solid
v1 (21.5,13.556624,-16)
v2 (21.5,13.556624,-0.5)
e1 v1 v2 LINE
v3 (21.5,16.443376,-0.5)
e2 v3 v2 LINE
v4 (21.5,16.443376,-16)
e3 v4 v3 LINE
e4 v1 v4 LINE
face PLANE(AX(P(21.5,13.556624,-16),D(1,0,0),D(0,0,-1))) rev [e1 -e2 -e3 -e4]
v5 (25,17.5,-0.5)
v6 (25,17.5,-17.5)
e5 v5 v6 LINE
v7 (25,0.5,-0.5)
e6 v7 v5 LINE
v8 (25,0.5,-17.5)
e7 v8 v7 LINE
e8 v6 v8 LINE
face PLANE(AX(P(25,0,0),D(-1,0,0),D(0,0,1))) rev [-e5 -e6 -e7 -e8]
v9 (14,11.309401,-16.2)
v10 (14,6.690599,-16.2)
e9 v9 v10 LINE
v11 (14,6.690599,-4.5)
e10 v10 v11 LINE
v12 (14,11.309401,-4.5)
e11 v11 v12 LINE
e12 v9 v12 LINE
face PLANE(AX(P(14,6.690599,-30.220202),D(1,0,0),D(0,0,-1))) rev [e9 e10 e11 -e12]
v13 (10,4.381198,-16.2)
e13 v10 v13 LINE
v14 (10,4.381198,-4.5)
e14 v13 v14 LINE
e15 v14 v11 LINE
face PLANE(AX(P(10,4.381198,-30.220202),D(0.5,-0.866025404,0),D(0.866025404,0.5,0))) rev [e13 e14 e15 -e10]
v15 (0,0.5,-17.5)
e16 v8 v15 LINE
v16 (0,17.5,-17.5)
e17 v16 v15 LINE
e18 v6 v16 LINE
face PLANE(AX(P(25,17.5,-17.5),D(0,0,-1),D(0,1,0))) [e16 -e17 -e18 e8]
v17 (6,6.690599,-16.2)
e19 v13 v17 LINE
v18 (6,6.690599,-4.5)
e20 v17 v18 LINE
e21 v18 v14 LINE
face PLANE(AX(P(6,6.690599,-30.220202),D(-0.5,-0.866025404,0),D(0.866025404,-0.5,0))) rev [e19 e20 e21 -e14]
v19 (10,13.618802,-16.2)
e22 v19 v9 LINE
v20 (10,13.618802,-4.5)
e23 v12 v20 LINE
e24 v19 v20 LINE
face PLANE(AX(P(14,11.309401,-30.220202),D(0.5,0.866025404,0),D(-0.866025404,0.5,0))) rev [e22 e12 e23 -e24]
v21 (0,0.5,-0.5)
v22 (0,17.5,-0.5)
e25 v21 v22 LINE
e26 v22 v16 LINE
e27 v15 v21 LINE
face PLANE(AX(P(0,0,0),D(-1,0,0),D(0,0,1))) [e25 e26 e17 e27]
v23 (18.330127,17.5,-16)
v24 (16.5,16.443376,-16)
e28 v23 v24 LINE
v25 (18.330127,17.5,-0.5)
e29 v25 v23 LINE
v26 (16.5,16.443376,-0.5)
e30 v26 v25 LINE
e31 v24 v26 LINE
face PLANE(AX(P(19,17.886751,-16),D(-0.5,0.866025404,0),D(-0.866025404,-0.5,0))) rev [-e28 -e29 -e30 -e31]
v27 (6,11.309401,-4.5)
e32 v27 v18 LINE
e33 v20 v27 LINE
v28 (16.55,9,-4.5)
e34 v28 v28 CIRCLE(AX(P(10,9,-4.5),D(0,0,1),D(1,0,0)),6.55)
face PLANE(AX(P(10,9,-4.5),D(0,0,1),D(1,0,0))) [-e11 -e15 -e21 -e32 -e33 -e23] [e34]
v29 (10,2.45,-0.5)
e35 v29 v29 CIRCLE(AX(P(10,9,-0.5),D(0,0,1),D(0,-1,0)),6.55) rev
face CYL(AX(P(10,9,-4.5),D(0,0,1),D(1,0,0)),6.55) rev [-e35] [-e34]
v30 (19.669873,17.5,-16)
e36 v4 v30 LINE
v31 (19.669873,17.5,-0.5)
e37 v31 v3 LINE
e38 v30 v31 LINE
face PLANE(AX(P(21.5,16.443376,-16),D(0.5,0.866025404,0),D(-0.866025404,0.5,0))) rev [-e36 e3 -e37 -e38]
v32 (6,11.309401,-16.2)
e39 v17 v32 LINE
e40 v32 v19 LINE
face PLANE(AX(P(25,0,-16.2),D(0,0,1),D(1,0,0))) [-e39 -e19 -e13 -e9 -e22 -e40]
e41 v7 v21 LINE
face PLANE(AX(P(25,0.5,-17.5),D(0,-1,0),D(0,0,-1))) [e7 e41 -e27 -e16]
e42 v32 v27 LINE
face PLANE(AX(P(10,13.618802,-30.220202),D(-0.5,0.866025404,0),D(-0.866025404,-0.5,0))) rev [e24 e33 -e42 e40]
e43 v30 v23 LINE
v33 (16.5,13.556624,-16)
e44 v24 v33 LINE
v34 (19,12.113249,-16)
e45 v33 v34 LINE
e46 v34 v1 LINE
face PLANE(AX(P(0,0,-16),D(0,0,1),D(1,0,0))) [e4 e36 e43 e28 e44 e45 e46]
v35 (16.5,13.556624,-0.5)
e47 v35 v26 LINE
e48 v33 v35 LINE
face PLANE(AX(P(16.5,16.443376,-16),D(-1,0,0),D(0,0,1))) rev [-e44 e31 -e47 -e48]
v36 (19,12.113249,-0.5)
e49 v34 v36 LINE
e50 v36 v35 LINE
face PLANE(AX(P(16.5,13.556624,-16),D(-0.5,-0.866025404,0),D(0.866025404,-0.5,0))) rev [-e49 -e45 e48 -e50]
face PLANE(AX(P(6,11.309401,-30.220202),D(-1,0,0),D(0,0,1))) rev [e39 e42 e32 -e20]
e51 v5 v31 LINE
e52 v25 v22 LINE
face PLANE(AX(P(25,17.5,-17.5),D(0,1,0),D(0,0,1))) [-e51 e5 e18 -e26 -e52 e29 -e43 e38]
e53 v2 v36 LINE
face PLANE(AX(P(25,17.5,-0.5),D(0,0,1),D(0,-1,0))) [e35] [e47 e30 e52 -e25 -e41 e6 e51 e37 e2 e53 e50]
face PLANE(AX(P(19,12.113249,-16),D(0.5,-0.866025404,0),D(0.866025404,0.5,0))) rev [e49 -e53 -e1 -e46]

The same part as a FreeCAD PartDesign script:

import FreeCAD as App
import Part
import Sketcher

V = App.Vector
Q = App.Units.Quantity

doc = App.newDocument("Part")
body = doc.addObject("PartDesign::Body", "Body")

# Sketch on YZ plane
sketch1 = body.newObject("Sketcher::SketchObject", "Sketch")
sketch1.AttachmentSupport = (doc.getObject("YZ_Plane"), [""])
sketch1.MapMode = "FlatFace"
sketch1.addGeometry(Part.LineSegment(V(18, 0, 0), V(0, 0, 0)), False)
sketch1.addGeometry(Part.LineSegment(V(0, 0, 0), V(0, -18, 0)), False)
sketch1.addGeometry(Part.LineSegment(V(0, -18, 0), V(18, -18, 0)), False)
sketch1.addGeometry(Part.LineSegment(V(18, -18, 0), V(18, 0, 0)), False)
sketch1.addConstraint(Sketcher.Constraint("Coincident", 0, 2, 1, 1))
sketch1.addConstraint(Sketcher.Constraint("Coincident", 1, 2, 2, 1))
sketch1.addConstraint(Sketcher.Constraint("Coincident", 2, 2, 3, 1))
sketch1.addConstraint(Sketcher.Constraint("Coincident", 3, 2, 0, 1))
sketch1.addConstraint(Sketcher.Constraint("Horizontal", 0))
sketch1.addConstraint(Sketcher.Constraint("Vertical", 1))
sketch1.addConstraint(Sketcher.Constraint("Horizontal", 2))
sketch1.addConstraint(Sketcher.Constraint("Vertical", 3))
sketch1.addConstraint(Sketcher.Constraint("Coincident", 0, 2, -1, 1))
sketch1.addConstraint(Sketcher.Constraint("Equal", 2, 1))
sketch1.addConstraint(Sketcher.Constraint("DistanceX", 0, 2, 0, 1, 18.0))
pad1 = body.newObject("PartDesign::Pad", "Pad")
pad1.Profile = sketch1
pad1.Length = 25

# Sketch on XY plane
sketch2 = body.newObject("Sketcher::SketchObject", "Sketch001")
sketch2.AttachmentSupport = (doc.getObject("XY_Plane"), [""])
sketch2.MapMode = "FlatFace"
sketch2.addGeometry(Part.Circle(V(10, 9, 0), V(0, 0, 1), 7), False)
sketch2.addConstraint(Sketcher.Constraint("Diameter", 0, 13.1))
sketch2.addConstraint(Sketcher.Constraint("DistanceX", -1, 1, 0, 3, 10.0))
sketch2.addConstraint(Sketcher.Constraint("DistanceY", -1, 1, 0, 3, 9.0))
pocket1 = body.newObject("PartDesign::Pocket", "Pocket")
pocket1.Profile = sketch2
pocket1.Length = 4.5

# Sketch on XY plane
sketch3 = body.newObject("Sketcher::SketchObject", "Sketch002")
sketch3.AttachmentSupport = (doc.getObject("XY_Plane"), [""])
sketch3.MapMode = "FlatFace"
sketch3.AttachmentOffset = App.Placement(V(0, 0, -4.5), App.Rotation())
sketch3.addGeometry(Part.LineSegment(V(10, 13.6, 0), V(6, 11.3, 0)), False)
sketch3.addGeometry(Part.LineSegment(V(6, 11.3, 0), V(6, 6.7, 0)), False)
sketch3.addGeometry(Part.LineSegment(V(6, 6.7, 0), V(10, 4.4, 0)), False)
sketch3.addGeometry(Part.LineSegment(V(10, 4.4, 0), V(14, 6.7, 0)), False)
sketch3.addGeometry(Part.LineSegment(V(14, 6.7, 0), V(14, 11.3, 0)), False)
sketch3.addGeometry(Part.LineSegment(V(14, 11.3, 0), V(10, 13.6, 0)), False)
sketch3.addConstraint(Sketcher.Constraint("Coincident", 0, 2, 1, 1))
sketch3.addConstraint(Sketcher.Constraint("Coincident", 1, 2, 2, 1))
sketch3.addConstraint(Sketcher.Constraint("Coincident", 2, 2, 3, 1))
sketch3.addConstraint(Sketcher.Constraint("Coincident", 3, 2, 4, 1))
sketch3.addConstraint(Sketcher.Constraint("Coincident", 4, 2, 5, 1))
sketch3.addConstraint(Sketcher.Constraint("Coincident", 5, 2, 0, 1))
sketch3.addConstraint(Sketcher.Constraint("Vertical", 1))
sketch3.addConstraint(Sketcher.Constraint("Vertical", 4))
sketch3.addConstraint(Sketcher.Constraint("Parallel", 0, 3))
sketch3.addConstraint(Sketcher.Constraint("Parallel", 2, 5))
sketch3.addConstraint(Sketcher.Constraint("Horizontal", 1, 2, 3, 2))
sketch3.addConstraint(Sketcher.Constraint("Horizontal", 0, 2, 4, 2))
sketch3.addConstraint(Sketcher.Constraint("Vertical", 2, 2, 5, 2))
sketch3.addConstraint(Sketcher.Constraint("Angle", 0, Q("-150 deg")))
sketch3.addConstraint(Sketcher.Constraint("DistanceX", -1, 1, 0, 2, 6.0))
sketch3.addConstraint(Sketcher.Constraint("DistanceX", -1, 1, 2, 2, 10.0))
sketch3.addConstraint(Sketcher.Constraint("DistanceY", -1, 1, 0, 2, 11.309401))
sketch3.addConstraint(Sketcher.Constraint("DistanceY", -1, 1, 1, 2, 6.690599))
pocket2 = body.newObject("PartDesign::Pocket", "Pocket001")
pocket2.Profile = sketch3
pocket2.Length = 11.7

# Sketch on XY plane
sketch4 = body.newObject("Sketcher::SketchObject", "Sketch003")
sketch4.AttachmentSupport = (doc.getObject("XY_Plane"), [""])
sketch4.MapMode = "FlatFace"
sketch4.addGeometry(Part.LineSegment(V(19, 17.9, 0), V(16.5, 16.4, 0)), False)
sketch4.addGeometry(Part.LineSegment(V(16.5, 16.4, 0), V(16.5, 13.6, 0)), False)
sketch4.addGeometry(Part.LineSegment(V(16.5, 13.6, 0), V(19, 12.1, 0)), False)
sketch4.addGeometry(Part.LineSegment(V(19, 12.1, 0), V(21.5, 13.6, 0)), False)
sketch4.addGeometry(Part.LineSegment(V(21.5, 13.6, 0), V(21.5, 16.4, 0)), False)
sketch4.addGeometry(Part.LineSegment(V(21.5, 16.4, 0), V(19, 17.9, 0)), False)
sketch4.addConstraint(Sketcher.Constraint("Coincident", 0, 2, 1, 1))
sketch4.addConstraint(Sketcher.Constraint("Coincident", 1, 2, 2, 1))
sketch4.addConstraint(Sketcher.Constraint("Coincident", 2, 2, 3, 1))
sketch4.addConstraint(Sketcher.Constraint("Coincident", 3, 2, 4, 1))
sketch4.addConstraint(Sketcher.Constraint("Coincident", 4, 2, 5, 1))
sketch4.addConstraint(Sketcher.Constraint("Coincident", 5, 2, 0, 1))
sketch4.addConstraint(Sketcher.Constraint("Vertical", 1))
sketch4.addConstraint(Sketcher.Constraint("Vertical", 4))
sketch4.addConstraint(Sketcher.Constraint("Parallel", 0, 3))
sketch4.addConstraint(Sketcher.Constraint("Parallel", 2, 5))
sketch4.addConstraint(Sketcher.Constraint("Horizontal", 1, 2, 3, 2))
sketch4.addConstraint(Sketcher.Constraint("Horizontal", 0, 2, 4, 2))
sketch4.addConstraint(Sketcher.Constraint("Vertical", 2, 2, 5, 2))
sketch4.addConstraint(Sketcher.Constraint("Angle", 0, Q("-150 deg")))
sketch4.addConstraint(Sketcher.Constraint("DistanceX", -1, 1, 2, 2, 19.0))
sketch4.addConstraint(Sketcher.Constraint("DistanceX", 1, 2, 3, 2, 5.0))
sketch4.addConstraint(Sketcher.Constraint("DistanceY", 1, 2, 1, 1, 2.886751))
sketch4.addConstraint(Sketcher.Constraint("DistanceY", -1, 1, 2, 2, 12.113249))
pocket3 = body.newObject("PartDesign::Pocket", "Pocket002")
pocket3.Profile = sketch4
pocket3.Length = 16

# Sketch on YZ plane
sketch5 = body.newObject("Sketcher::SketchObject", "Sketch004")
sketch5.AttachmentSupport = (doc.getObject("YZ_Plane"), [""])
sketch5.MapMode = "FlatFace"
sketch5.addGeometry(Part.LineSegment(V(18, -18, 0), V(0, -18, 0)), False)
sketch5.addGeometry(Part.LineSegment(V(0, -18, 0), V(0, 0, 0)), False)
sketch5.addGeometry(Part.LineSegment(V(0, 0, 0), V(18, 0, 0)), False)
sketch5.addGeometry(Part.LineSegment(V(18, 0, 0), V(18, -18, 0)), False)
sketch5.addGeometry(Part.LineSegment(V(0, 0, 0), V(0, -18, 0)), False)
sketch5.addGeometry(Part.LineSegment(V(0, -18, 0), V(18, -18, 0)), False)
sketch5.addGeometry(Part.LineSegment(V(18, -18, 0), V(18, 0, 0)), False)
sketch5.addGeometry(Part.LineSegment(V(18, 0, 0), V(0, 0, 0)), False)
sketch5.addConstraint(Sketcher.Constraint("Coincident", 0, 2, 1, 1))
sketch5.addConstraint(Sketcher.Constraint("Coincident", 1, 2, 2, 1))
sketch5.addConstraint(Sketcher.Constraint("Coincident", 2, 2, 3, 1))
sketch5.addConstraint(Sketcher.Constraint("Coincident", 3, 2, 0, 1))
sketch5.addConstraint(Sketcher.Constraint("Coincident", 4, 2, 5, 1))
sketch5.addConstraint(Sketcher.Constraint("Coincident", 5, 2, 6, 1))
sketch5.addConstraint(Sketcher.Constraint("Coincident", 6, 2, 7, 1))
sketch5.addConstraint(Sketcher.Constraint("Coincident", 7, 2, 4, 1))
sketch5.addConstraint(Sketcher.Constraint("Horizontal", 0))
sketch5.addConstraint(Sketcher.Constraint("Vertical", 1))
sketch5.addConstraint(Sketcher.Constraint("Horizontal", 2))
sketch5.addConstraint(Sketcher.Constraint("Vertical", 3))
sketch5.addConstraint(Sketcher.Constraint("Vertical", 4))
sketch5.addConstraint(Sketcher.Constraint("Horizontal", 5))
sketch5.addConstraint(Sketcher.Constraint("Vertical", 6))
sketch5.addConstraint(Sketcher.Constraint("Horizontal", 7))
sketch5.addConstraint(Sketcher.Constraint("Coincident", 1, 2, -1, 1))
sketch5.addConstraint(Sketcher.Constraint("Equal", 2, 1))
sketch5.addConstraint(Sketcher.Constraint("Equal", 7, 4))
sketch5.addConstraint(Sketcher.Constraint("DistanceX", 0, 2, 0, 1, 18.0))
sketch5.addConstraint(Sketcher.Constraint("DistanceX", 5, 1, 5, 2, 17.0))
sketch5.addConstraint(Sketcher.Constraint("DistanceX", -1, 1, 4, 2, 0.5))
sketch5.addConstraint(Sketcher.Constraint("DistanceY", 4, 2, -1, 1, 17.5))
pocket4 = body.newObject("PartDesign::Pocket", "Pocket003")
pocket4.Profile = sketch5
pocket4.Type = "ThroughAll"
pocket4.Reversed = True

doc.recompute()
